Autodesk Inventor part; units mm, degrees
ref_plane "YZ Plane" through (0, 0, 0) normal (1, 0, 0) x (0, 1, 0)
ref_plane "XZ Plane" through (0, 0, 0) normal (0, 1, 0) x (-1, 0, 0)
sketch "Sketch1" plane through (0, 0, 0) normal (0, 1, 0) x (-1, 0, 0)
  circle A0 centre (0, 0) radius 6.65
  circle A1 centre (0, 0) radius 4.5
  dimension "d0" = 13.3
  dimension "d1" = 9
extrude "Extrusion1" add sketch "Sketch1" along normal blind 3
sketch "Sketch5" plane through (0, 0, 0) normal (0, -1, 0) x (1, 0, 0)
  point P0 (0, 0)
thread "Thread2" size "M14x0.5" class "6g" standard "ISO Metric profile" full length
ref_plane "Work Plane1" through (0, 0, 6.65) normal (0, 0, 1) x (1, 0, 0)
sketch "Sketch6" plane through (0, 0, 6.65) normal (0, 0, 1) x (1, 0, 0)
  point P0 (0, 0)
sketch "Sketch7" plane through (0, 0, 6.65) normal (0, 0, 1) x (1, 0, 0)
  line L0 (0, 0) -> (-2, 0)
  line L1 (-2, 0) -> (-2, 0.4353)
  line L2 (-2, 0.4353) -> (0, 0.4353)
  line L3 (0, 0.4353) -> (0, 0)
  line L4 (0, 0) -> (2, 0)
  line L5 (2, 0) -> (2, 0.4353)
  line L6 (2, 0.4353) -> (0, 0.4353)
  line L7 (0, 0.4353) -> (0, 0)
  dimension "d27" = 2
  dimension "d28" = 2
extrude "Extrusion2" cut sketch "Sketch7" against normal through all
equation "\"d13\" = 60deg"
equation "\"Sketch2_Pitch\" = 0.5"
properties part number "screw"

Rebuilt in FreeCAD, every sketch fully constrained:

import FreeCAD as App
import Part
import Sketcher
from FreeCAD import Vector

doc = App.newDocument("Part")
body = doc.addObject("PartDesign::Body", "Body")

# Sketch on XZ plane
sketch1 = body.newObject("Sketcher::SketchObject", "Sketch")
sketch1.AttachmentSupport = (doc.getObject("XZ_Plane"), [""])
sketch1.MapMode = "FlatFace"
sketch1.addGeometry(Part.Circle(Vector(0, 0, 0), Vector(0, 0, 1), 6.7), False)
sketch1.addGeometry(Part.Circle(Vector(0, 0, 0), Vector(0, 0, 1), 4.5), False)
sketch1.addConstraint(Sketcher.Constraint("Coincident", 0, 3, -1, 1))
sketch1.addConstraint(Sketcher.Constraint("Coincident", 1, 3, -1, 1))
sketch1.addConstraint(Sketcher.Constraint("Diameter", 1, 9.0))
sketch1.addConstraint(Sketcher.Constraint("Diameter", 0, 13.3))
pad1 = body.newObject("PartDesign::Pad", "Pad")
pad1.Profile = sketch1
pad1.Length = 3
pad1.Reversed = True

# Sketch on XY plane
sketch2 = body.newObject("Sketcher::SketchObject", "Sketch001")
sketch2.AttachmentSupport = (doc.getObject("XY_Plane"), [""])
sketch2.MapMode = "FlatFace"
sketch2.AttachmentOffset = App.Placement(Vector(0, 0, 6.65), App.Rotation())
sketch2.addGeometry(Part.LineSegment(Vector(-2, 0, 0), Vector(2, 0, 0)), False)
sketch2.addGeometry(Part.LineSegment(Vector(2, 0, 0), Vector(2, 0.44, 0)), False)
sketch2.addGeometry(Part.LineSegment(Vector(2, 0.44, 0), Vector(-2, 0.44, 0)), False)
sketch2.addGeometry(Part.LineSegment(Vector(-2, 0.44, 0), Vector(-2, 0, 0)), False)
sketch2.addConstraint(Sketcher.Constraint("Coincident", 0, 2, 1, 1))
sketch2.addConstraint(Sketcher.Constraint("Coincident", 1, 2, 2, 1))
sketch2.addConstraint(Sketcher.Constraint("Coincident", 2, 2, 3, 1))
sketch2.addConstraint(Sketcher.Constraint("Coincident", 3, 2, 0, 1))
sketch2.addConstraint(Sketcher.Constraint("Horizontal", 0))
sketch2.addConstraint(Sketcher.Constraint("Vertical", 1))
sketch2.addConstraint(Sketcher.Constraint("Horizontal", 2))
sketch2.addConstraint(Sketcher.Constraint("Vertical", 3))
sketch2.addConstraint(Sketcher.Constraint("Symmetric", 0, 2, 3, 2, -1, 1))
sketch2.addConstraint(Sketcher.Constraint("DistanceX", -1, 1, 0, 2, 2.0))
sketch2.addConstraint(Sketcher.Constraint("DistanceY", 1, 1, 1, 2, 0.4353))
pocket1 = body.newObject("PartDesign::Pocket", "Pocket")
pocket1.Profile = sketch2
pocket1.Type = "ThroughAll"

doc.recompute()
